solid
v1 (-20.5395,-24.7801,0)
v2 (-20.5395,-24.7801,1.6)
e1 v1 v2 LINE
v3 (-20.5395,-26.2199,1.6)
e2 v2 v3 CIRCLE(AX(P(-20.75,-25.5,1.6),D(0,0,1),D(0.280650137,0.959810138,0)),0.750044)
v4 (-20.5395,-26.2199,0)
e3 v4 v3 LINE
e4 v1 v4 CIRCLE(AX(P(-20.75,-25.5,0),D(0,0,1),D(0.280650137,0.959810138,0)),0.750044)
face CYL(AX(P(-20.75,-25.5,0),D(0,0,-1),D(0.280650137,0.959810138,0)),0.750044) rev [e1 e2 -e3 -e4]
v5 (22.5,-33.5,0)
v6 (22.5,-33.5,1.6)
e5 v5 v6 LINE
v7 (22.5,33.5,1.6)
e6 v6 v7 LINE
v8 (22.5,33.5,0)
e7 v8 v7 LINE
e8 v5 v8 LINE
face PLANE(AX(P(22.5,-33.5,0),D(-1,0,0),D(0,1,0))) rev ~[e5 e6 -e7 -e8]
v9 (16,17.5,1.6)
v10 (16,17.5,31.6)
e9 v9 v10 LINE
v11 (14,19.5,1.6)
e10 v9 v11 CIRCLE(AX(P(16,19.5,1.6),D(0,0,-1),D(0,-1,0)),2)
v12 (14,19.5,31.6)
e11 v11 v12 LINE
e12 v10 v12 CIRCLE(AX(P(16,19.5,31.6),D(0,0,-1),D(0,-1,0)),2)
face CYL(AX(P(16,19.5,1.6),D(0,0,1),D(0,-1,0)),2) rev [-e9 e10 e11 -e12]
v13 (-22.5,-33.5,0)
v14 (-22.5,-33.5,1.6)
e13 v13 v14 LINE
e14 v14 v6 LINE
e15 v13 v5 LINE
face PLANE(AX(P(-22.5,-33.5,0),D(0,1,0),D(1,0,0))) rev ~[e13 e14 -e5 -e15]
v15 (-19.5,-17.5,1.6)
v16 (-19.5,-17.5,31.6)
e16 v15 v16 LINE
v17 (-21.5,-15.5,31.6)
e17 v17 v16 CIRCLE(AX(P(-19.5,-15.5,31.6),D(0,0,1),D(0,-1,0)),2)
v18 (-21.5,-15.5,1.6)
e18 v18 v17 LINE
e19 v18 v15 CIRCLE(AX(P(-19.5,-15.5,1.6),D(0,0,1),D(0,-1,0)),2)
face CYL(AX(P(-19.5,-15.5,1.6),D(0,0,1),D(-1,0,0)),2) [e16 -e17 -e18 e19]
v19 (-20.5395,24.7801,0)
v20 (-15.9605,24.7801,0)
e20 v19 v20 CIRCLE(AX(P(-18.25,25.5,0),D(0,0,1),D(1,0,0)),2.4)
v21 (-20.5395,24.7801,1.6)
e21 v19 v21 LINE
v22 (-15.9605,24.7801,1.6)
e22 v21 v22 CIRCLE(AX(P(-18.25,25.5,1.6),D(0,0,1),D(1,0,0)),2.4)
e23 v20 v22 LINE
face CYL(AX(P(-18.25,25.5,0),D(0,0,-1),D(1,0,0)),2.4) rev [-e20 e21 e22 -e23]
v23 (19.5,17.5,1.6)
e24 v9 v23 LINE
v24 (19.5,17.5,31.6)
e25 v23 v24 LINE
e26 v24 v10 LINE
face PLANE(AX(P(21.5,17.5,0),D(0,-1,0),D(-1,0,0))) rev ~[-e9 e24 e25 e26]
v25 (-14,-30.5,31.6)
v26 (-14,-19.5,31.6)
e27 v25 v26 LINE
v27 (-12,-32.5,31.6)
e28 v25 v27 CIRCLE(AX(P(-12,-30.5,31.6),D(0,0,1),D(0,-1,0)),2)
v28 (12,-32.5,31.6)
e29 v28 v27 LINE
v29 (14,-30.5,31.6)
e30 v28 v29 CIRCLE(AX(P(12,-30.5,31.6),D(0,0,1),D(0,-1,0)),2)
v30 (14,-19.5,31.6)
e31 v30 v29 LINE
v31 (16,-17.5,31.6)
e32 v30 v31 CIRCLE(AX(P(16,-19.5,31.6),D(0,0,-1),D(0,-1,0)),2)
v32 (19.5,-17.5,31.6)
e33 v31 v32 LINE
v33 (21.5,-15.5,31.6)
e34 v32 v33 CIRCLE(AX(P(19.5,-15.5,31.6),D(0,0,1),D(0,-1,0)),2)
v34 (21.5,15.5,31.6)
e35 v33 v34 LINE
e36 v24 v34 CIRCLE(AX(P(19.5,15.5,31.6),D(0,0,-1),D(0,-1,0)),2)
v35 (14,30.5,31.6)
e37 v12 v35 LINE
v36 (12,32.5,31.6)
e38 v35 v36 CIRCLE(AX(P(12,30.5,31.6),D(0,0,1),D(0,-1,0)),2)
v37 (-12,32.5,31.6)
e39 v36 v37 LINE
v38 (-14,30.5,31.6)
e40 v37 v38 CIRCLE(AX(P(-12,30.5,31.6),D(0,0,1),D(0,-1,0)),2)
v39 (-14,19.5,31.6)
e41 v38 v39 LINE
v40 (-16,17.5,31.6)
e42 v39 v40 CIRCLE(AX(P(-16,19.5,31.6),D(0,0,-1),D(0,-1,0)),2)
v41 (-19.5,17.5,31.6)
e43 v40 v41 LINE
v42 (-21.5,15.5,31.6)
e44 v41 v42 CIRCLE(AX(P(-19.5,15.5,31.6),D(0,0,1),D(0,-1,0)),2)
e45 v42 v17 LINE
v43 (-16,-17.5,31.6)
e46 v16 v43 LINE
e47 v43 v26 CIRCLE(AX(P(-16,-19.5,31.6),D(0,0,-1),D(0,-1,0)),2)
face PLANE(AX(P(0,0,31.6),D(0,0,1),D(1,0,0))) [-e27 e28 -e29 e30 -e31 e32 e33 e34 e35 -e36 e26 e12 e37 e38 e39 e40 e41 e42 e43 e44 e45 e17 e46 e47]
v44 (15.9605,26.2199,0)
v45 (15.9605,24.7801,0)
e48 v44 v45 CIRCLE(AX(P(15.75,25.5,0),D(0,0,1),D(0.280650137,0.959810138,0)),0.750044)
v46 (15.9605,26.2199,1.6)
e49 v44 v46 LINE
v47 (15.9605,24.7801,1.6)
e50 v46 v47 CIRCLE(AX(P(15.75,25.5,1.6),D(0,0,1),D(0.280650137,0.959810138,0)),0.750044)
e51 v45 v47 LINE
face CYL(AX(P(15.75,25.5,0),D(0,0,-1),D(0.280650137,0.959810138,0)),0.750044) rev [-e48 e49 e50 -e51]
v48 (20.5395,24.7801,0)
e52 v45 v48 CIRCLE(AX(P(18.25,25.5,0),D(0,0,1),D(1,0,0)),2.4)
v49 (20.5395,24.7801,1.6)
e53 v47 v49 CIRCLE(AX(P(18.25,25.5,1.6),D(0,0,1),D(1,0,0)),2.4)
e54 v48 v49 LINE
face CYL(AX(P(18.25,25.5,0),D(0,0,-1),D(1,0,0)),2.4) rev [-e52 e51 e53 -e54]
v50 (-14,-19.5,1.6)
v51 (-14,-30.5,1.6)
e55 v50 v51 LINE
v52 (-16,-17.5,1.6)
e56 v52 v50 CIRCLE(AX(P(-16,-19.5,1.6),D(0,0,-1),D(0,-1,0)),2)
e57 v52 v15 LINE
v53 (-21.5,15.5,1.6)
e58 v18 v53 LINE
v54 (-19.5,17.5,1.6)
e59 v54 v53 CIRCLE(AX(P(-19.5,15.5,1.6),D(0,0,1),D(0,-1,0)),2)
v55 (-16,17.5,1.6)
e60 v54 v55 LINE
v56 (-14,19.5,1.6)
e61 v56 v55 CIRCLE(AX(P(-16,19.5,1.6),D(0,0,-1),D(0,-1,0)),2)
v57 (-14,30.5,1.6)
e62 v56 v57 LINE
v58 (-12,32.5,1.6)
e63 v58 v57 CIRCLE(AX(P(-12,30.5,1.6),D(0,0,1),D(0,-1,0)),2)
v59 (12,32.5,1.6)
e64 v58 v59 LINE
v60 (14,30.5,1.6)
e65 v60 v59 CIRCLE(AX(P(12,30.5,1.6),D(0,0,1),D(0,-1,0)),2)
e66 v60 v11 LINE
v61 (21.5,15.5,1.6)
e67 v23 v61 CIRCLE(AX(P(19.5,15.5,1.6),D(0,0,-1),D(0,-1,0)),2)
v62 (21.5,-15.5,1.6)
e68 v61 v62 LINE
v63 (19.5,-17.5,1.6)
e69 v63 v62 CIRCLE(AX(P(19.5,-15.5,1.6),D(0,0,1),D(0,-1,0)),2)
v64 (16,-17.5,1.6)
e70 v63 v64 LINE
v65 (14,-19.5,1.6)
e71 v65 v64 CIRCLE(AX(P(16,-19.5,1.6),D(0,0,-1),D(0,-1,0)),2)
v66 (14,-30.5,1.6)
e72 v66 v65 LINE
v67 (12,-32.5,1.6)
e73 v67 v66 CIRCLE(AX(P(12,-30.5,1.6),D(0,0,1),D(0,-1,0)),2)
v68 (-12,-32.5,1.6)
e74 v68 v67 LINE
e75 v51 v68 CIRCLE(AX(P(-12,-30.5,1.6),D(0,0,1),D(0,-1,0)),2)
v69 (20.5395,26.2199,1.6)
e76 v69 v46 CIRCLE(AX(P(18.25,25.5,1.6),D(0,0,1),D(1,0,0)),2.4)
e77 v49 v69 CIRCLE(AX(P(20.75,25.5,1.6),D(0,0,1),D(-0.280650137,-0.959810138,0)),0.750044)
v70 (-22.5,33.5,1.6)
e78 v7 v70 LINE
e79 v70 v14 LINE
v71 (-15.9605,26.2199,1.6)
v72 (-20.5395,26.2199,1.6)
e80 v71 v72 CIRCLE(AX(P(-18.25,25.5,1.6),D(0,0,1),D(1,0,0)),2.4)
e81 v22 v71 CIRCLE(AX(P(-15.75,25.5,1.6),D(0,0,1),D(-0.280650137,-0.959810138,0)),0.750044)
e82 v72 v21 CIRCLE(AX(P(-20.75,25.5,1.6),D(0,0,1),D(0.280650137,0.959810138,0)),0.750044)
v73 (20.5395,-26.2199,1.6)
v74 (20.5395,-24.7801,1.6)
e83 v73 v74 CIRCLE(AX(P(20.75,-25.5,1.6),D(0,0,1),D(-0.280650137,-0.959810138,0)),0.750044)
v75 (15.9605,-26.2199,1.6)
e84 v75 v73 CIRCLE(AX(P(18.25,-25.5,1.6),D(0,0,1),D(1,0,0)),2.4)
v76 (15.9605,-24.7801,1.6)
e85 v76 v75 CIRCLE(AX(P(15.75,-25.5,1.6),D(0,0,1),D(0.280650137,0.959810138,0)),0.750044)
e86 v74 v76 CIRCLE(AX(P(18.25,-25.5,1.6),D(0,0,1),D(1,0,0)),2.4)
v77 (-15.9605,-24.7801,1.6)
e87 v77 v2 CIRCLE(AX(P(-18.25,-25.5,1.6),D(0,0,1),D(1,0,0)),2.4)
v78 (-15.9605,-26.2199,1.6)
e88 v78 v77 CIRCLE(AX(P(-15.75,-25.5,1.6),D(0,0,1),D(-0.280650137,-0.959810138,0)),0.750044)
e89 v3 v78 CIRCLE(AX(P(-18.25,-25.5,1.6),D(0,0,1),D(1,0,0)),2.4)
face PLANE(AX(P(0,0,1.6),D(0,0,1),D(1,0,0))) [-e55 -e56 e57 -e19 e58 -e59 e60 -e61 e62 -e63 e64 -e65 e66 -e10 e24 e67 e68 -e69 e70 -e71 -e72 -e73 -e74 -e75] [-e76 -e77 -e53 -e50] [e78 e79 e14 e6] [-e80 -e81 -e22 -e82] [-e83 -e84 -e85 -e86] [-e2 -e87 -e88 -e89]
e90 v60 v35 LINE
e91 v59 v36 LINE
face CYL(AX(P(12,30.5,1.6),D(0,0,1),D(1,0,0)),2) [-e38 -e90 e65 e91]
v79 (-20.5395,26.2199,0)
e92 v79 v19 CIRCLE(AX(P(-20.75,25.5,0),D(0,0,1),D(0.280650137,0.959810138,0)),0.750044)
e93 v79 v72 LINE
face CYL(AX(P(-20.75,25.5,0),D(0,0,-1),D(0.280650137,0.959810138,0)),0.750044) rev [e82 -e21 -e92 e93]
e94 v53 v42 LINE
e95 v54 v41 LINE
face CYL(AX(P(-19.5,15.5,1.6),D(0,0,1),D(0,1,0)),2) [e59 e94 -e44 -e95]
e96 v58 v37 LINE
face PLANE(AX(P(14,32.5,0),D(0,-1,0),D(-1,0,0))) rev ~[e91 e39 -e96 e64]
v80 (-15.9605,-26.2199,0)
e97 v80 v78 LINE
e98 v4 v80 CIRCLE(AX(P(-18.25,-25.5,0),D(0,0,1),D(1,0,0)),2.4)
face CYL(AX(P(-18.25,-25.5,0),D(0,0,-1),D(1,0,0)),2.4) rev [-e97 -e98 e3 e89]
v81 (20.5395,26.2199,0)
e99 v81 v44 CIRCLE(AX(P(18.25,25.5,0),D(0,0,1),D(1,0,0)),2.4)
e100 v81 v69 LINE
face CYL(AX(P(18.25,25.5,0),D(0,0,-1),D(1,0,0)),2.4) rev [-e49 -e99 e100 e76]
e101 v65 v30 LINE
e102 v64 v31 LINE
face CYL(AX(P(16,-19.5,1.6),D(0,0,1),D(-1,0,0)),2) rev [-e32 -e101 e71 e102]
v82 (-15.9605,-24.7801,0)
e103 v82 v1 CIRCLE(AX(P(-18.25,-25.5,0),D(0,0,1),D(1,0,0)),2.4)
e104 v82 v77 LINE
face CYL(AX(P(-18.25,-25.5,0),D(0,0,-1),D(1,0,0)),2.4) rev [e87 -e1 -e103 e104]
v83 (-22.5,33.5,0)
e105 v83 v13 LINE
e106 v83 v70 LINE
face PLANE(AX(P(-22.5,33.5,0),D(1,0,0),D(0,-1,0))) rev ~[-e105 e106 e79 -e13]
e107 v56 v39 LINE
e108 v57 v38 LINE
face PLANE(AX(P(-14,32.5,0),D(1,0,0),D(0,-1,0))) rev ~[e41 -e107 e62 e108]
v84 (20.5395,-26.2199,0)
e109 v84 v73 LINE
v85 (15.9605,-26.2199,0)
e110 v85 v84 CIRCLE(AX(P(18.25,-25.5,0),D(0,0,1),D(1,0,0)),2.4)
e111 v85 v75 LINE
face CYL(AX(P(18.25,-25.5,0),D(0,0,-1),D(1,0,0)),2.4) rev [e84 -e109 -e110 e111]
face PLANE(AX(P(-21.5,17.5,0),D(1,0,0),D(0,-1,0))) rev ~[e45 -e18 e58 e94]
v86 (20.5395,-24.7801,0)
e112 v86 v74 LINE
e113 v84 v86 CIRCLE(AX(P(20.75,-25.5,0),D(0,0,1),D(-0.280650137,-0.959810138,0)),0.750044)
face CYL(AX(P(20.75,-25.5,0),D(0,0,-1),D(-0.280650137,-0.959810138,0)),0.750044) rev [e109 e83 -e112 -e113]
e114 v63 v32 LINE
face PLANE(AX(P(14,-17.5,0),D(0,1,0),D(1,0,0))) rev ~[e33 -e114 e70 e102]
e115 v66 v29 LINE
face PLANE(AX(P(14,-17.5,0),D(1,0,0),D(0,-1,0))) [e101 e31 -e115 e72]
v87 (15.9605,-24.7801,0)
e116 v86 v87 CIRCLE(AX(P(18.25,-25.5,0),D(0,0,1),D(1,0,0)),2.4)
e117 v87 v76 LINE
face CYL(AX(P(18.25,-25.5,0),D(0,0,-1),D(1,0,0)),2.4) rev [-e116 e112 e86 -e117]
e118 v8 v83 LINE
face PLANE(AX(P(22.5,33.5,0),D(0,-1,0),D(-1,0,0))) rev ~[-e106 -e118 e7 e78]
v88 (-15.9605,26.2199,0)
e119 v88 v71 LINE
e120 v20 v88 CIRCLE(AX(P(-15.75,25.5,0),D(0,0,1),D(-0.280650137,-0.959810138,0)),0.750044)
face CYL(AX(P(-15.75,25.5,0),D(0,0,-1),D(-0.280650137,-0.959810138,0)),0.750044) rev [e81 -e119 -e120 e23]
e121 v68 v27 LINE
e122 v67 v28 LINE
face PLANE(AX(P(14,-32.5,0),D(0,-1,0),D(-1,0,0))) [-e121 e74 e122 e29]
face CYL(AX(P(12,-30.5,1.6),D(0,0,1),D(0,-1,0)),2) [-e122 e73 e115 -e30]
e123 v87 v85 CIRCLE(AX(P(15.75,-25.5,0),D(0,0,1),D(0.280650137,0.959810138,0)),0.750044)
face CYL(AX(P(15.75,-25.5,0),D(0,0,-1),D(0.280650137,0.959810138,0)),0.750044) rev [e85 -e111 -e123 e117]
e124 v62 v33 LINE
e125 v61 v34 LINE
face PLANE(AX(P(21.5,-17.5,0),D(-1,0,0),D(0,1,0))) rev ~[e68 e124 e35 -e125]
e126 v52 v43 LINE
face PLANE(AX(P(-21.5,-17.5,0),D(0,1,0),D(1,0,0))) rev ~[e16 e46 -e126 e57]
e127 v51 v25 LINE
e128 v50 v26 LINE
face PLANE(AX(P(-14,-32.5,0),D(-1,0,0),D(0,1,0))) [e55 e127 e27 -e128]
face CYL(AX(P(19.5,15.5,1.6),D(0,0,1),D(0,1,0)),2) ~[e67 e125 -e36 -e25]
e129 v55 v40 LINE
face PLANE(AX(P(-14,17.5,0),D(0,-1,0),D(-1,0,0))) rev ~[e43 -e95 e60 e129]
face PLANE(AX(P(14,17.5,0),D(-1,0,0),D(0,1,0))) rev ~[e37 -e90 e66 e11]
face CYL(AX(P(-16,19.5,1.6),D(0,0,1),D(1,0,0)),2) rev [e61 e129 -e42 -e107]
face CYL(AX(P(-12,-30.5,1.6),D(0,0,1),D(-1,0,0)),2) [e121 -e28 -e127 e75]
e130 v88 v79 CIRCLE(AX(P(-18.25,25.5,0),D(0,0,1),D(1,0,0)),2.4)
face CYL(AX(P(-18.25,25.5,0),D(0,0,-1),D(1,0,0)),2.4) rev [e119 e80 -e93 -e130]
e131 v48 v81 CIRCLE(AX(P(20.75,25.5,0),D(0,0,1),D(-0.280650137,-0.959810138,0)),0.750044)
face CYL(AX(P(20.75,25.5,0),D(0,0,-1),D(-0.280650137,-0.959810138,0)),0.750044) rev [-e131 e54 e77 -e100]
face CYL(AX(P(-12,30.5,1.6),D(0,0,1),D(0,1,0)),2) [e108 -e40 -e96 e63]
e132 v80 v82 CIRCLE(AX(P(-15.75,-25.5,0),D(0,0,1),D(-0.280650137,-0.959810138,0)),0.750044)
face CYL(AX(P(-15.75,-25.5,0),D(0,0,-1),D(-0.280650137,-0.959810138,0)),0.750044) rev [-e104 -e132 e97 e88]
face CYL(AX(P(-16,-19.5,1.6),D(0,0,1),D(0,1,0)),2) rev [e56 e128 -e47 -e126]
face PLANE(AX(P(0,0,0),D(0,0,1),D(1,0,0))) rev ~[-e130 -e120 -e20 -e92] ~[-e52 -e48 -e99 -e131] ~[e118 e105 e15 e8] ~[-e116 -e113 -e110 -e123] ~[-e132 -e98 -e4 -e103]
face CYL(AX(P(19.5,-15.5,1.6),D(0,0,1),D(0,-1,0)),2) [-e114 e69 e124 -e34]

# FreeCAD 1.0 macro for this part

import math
import FreeCAD as App
import Part
import Sketcher

V = App.Vector


def edges_at(feature, points):
    """Names of the edges that pass closest to the given points."""
    edges = feature.Shape.Edges
    near = lambda p: min(range(len(edges)), key=lambda i: edges[i].distToShape(Part.Vertex(*p))[0])
    return sorted({f"Edge{near(p) + 1}" for p in points})

doc = App.newDocument("Part")
body = doc.addObject("PartDesign::Body", "Body")

# Sketch on XY plane
sketch1 = body.newObject("Sketcher::SketchObject", "Sketch")
sketch1.AttachmentSupport = (doc.getObject("XY_Plane"), [""])
sketch1.MapMode = "FlatFace"
sketch1.addGeometry([
    Part.LineSegment(V(22.5, -33.5, 0), V(22.5, 33.5, 0)),  # 0
    Part.LineSegment(V(22.5, 33.5, 0), V(-22.5, 33.5, 0)),  # 1
    Part.LineSegment(V(-22.5, 33.5, 0), V(-22.5, -33.5, 0)),  # 2
    Part.LineSegment(V(-22.5, -33.5, 0), V(22.5, -33.5, 0)),  # 3
    Part.ArcOfCircle(Part.Circle(V(-18.25, -25.5, 0), V(0, 0, 1), 2.4), math.radians(17.454997), math.radians(162.545003)),  # 4
    Part.ArcOfCircle(Part.Circle(V(-15.75, -25.5, 0), V(0, 0, 1), 0.750044), math.radians(-106.299011), math.radians(106.299011)),  # 5
    Part.ArcOfCircle(Part.Circle(V(-18.25, -25.5, 0), V(0, 0, 1), 2.4), math.radians(-162.545003), math.radians(-17.454997)),  # 6
    Part.ArcOfCircle(Part.Circle(V(-20.75, -25.5, 0), V(0, 0, 1), 0.750044), math.radians(73.700989), math.radians(286.299011)),  # 7
    Part.ArcOfCircle(Part.Circle(V(18.25, -25.5, 0), V(0, 0, 1), 2.4), math.radians(17.454997), math.radians(162.545003)),  # 8
    Part.ArcOfCircle(Part.Circle(V(20.75, -25.5, 0), V(0, 0, 1), 0.750044), math.radians(-106.299011), math.radians(106.299011)),  # 9
    Part.ArcOfCircle(Part.Circle(V(18.25, -25.5, 0), V(0, 0, 1), 2.4), math.radians(-162.545003), math.radians(-17.454997)),  # 10
    Part.ArcOfCircle(Part.Circle(V(15.75, -25.5, 0), V(0, 0, 1), 0.750044), math.radians(73.700989), math.radians(286.299011)),  # 11
    Part.ArcOfCircle(Part.Circle(V(-18.25, 25.5, 0), V(0, 0, 1), 2.4), math.radians(17.454997), math.radians(162.545003)),  # 12
    Part.ArcOfCircle(Part.Circle(V(-15.75, 25.5, 0), V(0, 0, 1), 0.750044), math.radians(-106.299011), math.radians(106.299011)),  # 13
    Part.ArcOfCircle(Part.Circle(V(-18.25, 25.5, 0), V(0, 0, 1), 2.4), math.radians(-162.545003), math.radians(-17.454997)),  # 14
    Part.ArcOfCircle(Part.Circle(V(-20.75, 25.5, 0), V(0, 0, 1), 0.750044), math.radians(73.700989), math.radians(286.299011)),  # 15
    Part.ArcOfCircle(Part.Circle(V(18.25, 25.5, 0), V(0, 0, 1), 2.4), math.radians(17.454997), math.radians(162.545003)),  # 16
    Part.ArcOfCircle(Part.Circle(V(20.75, 25.5, 0), V(0, 0, 1), 0.750044), math.radians(-106.299011), math.radians(106.299011)),  # 17
    Part.ArcOfCircle(Part.Circle(V(18.25, 25.5, 0), V(0, 0, 1), 2.4), math.radians(-162.545003), math.radians(-17.454997)),  # 18
    Part.ArcOfCircle(Part.Circle(V(15.75, 25.5, 0), V(0, 0, 1), 0.750044), math.radians(73.700989), math.radians(286.299011)),  # 19
], False)
sketch1.addConstraint([
    Sketcher.Constraint("Coincident", 0, 2, 1, 1),
    Sketcher.Constraint("Coincident", 1, 2, 2, 1),
    Sketcher.Constraint("Coincident", 2, 2, 3, 1),
    Sketcher.Constraint("Coincident", 3, 2, 0, 1),
    Sketcher.Constraint("Coincident", 4, 1, 5, 2),
    Sketcher.Constraint("Coincident", 5, 1, 6, 2),
    Sketcher.Constraint("Coincident", 6, 1, 7, 2),
    Sketcher.Constraint("Coincident", 7, 1, 4, 2),
    Sketcher.Constraint("Coincident", 8, 1, 9, 2),
    Sketcher.Constraint("Coincident", 9, 1, 10, 2),
    Sketcher.Constraint("Coincident", 10, 1, 11, 2),
    Sketcher.Constraint("Coincident", 11, 1, 8, 2),
    Sketcher.Constraint("Coincident", 12, 1, 13, 2),
    Sketcher.Constraint("Coincident", 13, 1, 14, 2),
    Sketcher.Constraint("Coincident", 14, 1, 15, 2),
    Sketcher.Constraint("Coincident", 15, 1, 12, 2),
    Sketcher.Constraint("Coincident", 16, 1, 17, 2),
    Sketcher.Constraint("Coincident", 17, 1, 18, 2),
    Sketcher.Constraint("Coincident", 18, 1, 19, 2),
    Sketcher.Constraint("Coincident", 19, 1, 16, 2),
    Sketcher.Constraint("Vertical", 0),
    Sketcher.Constraint("Horizontal", 1),
    Sketcher.Constraint("Vertical", 2),
    Sketcher.Constraint("Horizontal", 3),
    Sketcher.Constraint("Coincident", 6, 3, 4, 3),
    Sketcher.Constraint("Coincident", 10, 3, 8, 3),
    Sketcher.Constraint("Coincident", 14, 3, 12, 3),
    Sketcher.Constraint("Coincident", 18, 3, 16, 3),
    Sketcher.Constraint("Equal", 4, 6),
    Sketcher.Constraint("Equal", 5, 7),
    Sketcher.Constraint("Equal", 6, 8),
    Sketcher.Constraint("Equal", 7, 9),
    Sketcher.Constraint("Equal", 8, 10),
    Sketcher.Constraint("Equal", 9, 11),
    Sketcher.Constraint("Equal", 10, 12),
    Sketcher.Constraint("Equal", 11, 13),
    Sketcher.Constraint("Equal", 12, 14),
    Sketcher.Constraint("Equal", 13, 15),
    Sketcher.Constraint("Equal", 14, 16),
    Sketcher.Constraint("Equal", 15, 17),
    Sketcher.Constraint("Equal", 16, 18),
    Sketcher.Constraint("Equal", 17, 19),
    Sketcher.Constraint("Symmetric", 8, 3, 12, 3, -1, 1),
    Sketcher.Constraint("Symmetric", 11, 3, 13, 3, -1, 1),
    Sketcher.Constraint("Symmetric", 9, 3, 15, 3, -1, 1),
    Sketcher.Constraint("Symmetric", 4, 3, 16, 3, -1, 1),
    Sketcher.Constraint("Symmetric", 7, 3, 17, 3, -1, 1),
    Sketcher.Constraint("Symmetric", 5, 3, 19, 3, -1, 1),
    Sketcher.Constraint("Symmetric", 0, 2, 2, 2, -1, 1),
    Sketcher.Constraint("Symmetric", 4, 3, 8, 3, -2),
    Sketcher.Constraint("Symmetric", 7, 3, 9, 3, -2),
    Sketcher.Constraint("Symmetric", 5, 3, 11, 3, -2),
    Sketcher.Constraint("Horizontal", 4, 3, 5, 3),
    Sketcher.Constraint("Horizontal", 6, 3, 7, 3),
    Sketcher.Constraint("Horizontal", 5, 1, 6, 1),
    Sketcher.Constraint("Radius", 4, 2.4),
    Sketcher.Constraint("DistanceX", 1, 2, 1, 1, 45.0),
    Sketcher.Constraint("DistanceY", 0, 1, 0, 2, 67.0),
    Sketcher.Constraint("Radius", 5, 0.75),
    Sketcher.Constraint("DistanceY", 4, 3, 12, 3, 51.0),
    Sketcher.Constraint("DistanceX", 4, 3, 8, 3, 36.5),
    Sketcher.Constraint("DistanceX", 7, 3, 5, 3, 5.0),
])
pad1 = body.newObject("PartDesign::Pad", "Pad")
pad1.Profile = sketch1
pad1.Length = 1.6

# Sketch on XY plane
sketch2 = body.newObject("Sketcher::SketchObject", "Sketch001")
sketch2.AttachmentSupport = (doc.getObject("XY_Plane"), [""])
sketch2.MapMode = "FlatFace"
sketch2.addGeometry([
    Part.LineSegment(V(21.5, -17.5, 0), V(21.5, 17.5, 0)),  # 0
    Part.LineSegment(V(21.5, 17.5, 0), V(14, 17.5, 0)),  # 1
    Part.LineSegment(V(14, 17.5, 0), V(14, 32.5, 0)),  # 2
    Part.LineSegment(V(14, 32.5, 0), V(-14, 32.5, 0)),  # 3
    Part.LineSegment(V(-14, 32.5, 0), V(-14, 17.5, 0)),  # 4
    Part.LineSegment(V(-14, 17.5, 0), V(-21.5, 17.5, 0)),  # 5
    Part.LineSegment(V(-21.5, 17.5, 0), V(-21.5, -17.5, 0)),  # 6
    Part.LineSegment(V(-21.5, -17.5, 0), V(-14, -17.5, 0)),  # 7
    Part.LineSegment(V(-14, -17.5, 0), V(-14, -32.5, 0)),  # 8
    Part.LineSegment(V(-14, -32.5, 0), V(14, -32.5, 0)),  # 9
    Part.LineSegment(V(14, -32.5, 0), V(14, -17.5, 0)),  # 10
    Part.LineSegment(V(14, -17.5, 0), V(21.5, -17.5, 0)),  # 11
], False)
sketch2.addConstraint([
    Sketcher.Constraint("Coincident", 0, 2, 1, 1),
    Sketcher.Constraint("Coincident", 1, 2, 2, 1),
    Sketcher.Constraint("Coincident", 2, 2, 3, 1),
    Sketcher.Constraint("Coincident", 3, 2, 4, 1),
    Sketcher.Constraint("Coincident", 4, 2, 5, 1),
    Sketcher.Constraint("Coincident", 5, 2, 6, 1),
    Sketcher.Constraint("Coincident", 6, 2, 7, 1),
    Sketcher.Constraint("Coincident", 7, 2, 8, 1),
    Sketcher.Constraint("Coincident", 8, 2, 9, 1),
    Sketcher.Constraint("Coincident", 9, 2, 10, 1),
    Sketcher.Constraint("Coincident", 10, 2, 11, 1),
    Sketcher.Constraint("Coincident", 11, 2, 0, 1),
    Sketcher.Constraint("Vertical", 0),
    Sketcher.Constraint("Horizontal", 1),
    Sketcher.Constraint("Vertical", 2),
    Sketcher.Constraint("Horizontal", 3),
    Sketcher.Constraint("Vertical", 4),
    Sketcher.Constraint("Horizontal", 5),
    Sketcher.Constraint("Vertical", 6),
    Sketcher.Constraint("Horizontal", 7),
    Sketcher.Constraint("Vertical", 8),
    Sketcher.Constraint("Horizontal", 9),
    Sketcher.Constraint("Vertical", 10),
    Sketcher.Constraint("Horizontal", 11),
    Sketcher.Constraint("Symmetric", 0, 2, 6, 2, -1, 1),
    Sketcher.Constraint("Symmetric", 2, 2, 8, 2, -1, 1),
    Sketcher.Constraint("Symmetric", 4, 2, 10, 2, -1, 1),
    Sketcher.Constraint("Symmetric", 1, 2, 4, 2, -2),
    Sketcher.Constraint("DistanceX", 3, 2, 3, 1, 28.0),
    Sketcher.Constraint("DistanceY", 0, 1, 0, 2, 35.0),
    Sketcher.Constraint("DistanceY", 2, 1, 2, 2, 15.0),
    Sketcher.Constraint("DistanceX", 1, 2, 1, 1, 7.5),
])
pad2 = body.newObject("PartDesign::Pad", "Pad001")
pad2.Profile = sketch2
pad2.Length = 31.6
doc.recompute()

fillet = body.newObject("PartDesign::Fillet", "Fillet")
fillet.Base = (pad2, edges_at(pad2, [
    (21.5, -17.5, 16.6),
    (21.5, 17.5, 16.6),
    (-21.5, -17.5, 16.6),
    (-21.5, 17.5, 16.6),
    (14, 17.5, 16.6),
    (14, -17.5, 16.6),
    (14, -32.5, 16.6),
    (-14, -32.5, 16.6),
    (-14, -17.5, 16.6),
    (-14, 17.5, 16.6),
    (-14, 32.5, 16.6),
    (14, 32.5, 16.6),
]))
fillet.Radius = 2

doc.recompute()
